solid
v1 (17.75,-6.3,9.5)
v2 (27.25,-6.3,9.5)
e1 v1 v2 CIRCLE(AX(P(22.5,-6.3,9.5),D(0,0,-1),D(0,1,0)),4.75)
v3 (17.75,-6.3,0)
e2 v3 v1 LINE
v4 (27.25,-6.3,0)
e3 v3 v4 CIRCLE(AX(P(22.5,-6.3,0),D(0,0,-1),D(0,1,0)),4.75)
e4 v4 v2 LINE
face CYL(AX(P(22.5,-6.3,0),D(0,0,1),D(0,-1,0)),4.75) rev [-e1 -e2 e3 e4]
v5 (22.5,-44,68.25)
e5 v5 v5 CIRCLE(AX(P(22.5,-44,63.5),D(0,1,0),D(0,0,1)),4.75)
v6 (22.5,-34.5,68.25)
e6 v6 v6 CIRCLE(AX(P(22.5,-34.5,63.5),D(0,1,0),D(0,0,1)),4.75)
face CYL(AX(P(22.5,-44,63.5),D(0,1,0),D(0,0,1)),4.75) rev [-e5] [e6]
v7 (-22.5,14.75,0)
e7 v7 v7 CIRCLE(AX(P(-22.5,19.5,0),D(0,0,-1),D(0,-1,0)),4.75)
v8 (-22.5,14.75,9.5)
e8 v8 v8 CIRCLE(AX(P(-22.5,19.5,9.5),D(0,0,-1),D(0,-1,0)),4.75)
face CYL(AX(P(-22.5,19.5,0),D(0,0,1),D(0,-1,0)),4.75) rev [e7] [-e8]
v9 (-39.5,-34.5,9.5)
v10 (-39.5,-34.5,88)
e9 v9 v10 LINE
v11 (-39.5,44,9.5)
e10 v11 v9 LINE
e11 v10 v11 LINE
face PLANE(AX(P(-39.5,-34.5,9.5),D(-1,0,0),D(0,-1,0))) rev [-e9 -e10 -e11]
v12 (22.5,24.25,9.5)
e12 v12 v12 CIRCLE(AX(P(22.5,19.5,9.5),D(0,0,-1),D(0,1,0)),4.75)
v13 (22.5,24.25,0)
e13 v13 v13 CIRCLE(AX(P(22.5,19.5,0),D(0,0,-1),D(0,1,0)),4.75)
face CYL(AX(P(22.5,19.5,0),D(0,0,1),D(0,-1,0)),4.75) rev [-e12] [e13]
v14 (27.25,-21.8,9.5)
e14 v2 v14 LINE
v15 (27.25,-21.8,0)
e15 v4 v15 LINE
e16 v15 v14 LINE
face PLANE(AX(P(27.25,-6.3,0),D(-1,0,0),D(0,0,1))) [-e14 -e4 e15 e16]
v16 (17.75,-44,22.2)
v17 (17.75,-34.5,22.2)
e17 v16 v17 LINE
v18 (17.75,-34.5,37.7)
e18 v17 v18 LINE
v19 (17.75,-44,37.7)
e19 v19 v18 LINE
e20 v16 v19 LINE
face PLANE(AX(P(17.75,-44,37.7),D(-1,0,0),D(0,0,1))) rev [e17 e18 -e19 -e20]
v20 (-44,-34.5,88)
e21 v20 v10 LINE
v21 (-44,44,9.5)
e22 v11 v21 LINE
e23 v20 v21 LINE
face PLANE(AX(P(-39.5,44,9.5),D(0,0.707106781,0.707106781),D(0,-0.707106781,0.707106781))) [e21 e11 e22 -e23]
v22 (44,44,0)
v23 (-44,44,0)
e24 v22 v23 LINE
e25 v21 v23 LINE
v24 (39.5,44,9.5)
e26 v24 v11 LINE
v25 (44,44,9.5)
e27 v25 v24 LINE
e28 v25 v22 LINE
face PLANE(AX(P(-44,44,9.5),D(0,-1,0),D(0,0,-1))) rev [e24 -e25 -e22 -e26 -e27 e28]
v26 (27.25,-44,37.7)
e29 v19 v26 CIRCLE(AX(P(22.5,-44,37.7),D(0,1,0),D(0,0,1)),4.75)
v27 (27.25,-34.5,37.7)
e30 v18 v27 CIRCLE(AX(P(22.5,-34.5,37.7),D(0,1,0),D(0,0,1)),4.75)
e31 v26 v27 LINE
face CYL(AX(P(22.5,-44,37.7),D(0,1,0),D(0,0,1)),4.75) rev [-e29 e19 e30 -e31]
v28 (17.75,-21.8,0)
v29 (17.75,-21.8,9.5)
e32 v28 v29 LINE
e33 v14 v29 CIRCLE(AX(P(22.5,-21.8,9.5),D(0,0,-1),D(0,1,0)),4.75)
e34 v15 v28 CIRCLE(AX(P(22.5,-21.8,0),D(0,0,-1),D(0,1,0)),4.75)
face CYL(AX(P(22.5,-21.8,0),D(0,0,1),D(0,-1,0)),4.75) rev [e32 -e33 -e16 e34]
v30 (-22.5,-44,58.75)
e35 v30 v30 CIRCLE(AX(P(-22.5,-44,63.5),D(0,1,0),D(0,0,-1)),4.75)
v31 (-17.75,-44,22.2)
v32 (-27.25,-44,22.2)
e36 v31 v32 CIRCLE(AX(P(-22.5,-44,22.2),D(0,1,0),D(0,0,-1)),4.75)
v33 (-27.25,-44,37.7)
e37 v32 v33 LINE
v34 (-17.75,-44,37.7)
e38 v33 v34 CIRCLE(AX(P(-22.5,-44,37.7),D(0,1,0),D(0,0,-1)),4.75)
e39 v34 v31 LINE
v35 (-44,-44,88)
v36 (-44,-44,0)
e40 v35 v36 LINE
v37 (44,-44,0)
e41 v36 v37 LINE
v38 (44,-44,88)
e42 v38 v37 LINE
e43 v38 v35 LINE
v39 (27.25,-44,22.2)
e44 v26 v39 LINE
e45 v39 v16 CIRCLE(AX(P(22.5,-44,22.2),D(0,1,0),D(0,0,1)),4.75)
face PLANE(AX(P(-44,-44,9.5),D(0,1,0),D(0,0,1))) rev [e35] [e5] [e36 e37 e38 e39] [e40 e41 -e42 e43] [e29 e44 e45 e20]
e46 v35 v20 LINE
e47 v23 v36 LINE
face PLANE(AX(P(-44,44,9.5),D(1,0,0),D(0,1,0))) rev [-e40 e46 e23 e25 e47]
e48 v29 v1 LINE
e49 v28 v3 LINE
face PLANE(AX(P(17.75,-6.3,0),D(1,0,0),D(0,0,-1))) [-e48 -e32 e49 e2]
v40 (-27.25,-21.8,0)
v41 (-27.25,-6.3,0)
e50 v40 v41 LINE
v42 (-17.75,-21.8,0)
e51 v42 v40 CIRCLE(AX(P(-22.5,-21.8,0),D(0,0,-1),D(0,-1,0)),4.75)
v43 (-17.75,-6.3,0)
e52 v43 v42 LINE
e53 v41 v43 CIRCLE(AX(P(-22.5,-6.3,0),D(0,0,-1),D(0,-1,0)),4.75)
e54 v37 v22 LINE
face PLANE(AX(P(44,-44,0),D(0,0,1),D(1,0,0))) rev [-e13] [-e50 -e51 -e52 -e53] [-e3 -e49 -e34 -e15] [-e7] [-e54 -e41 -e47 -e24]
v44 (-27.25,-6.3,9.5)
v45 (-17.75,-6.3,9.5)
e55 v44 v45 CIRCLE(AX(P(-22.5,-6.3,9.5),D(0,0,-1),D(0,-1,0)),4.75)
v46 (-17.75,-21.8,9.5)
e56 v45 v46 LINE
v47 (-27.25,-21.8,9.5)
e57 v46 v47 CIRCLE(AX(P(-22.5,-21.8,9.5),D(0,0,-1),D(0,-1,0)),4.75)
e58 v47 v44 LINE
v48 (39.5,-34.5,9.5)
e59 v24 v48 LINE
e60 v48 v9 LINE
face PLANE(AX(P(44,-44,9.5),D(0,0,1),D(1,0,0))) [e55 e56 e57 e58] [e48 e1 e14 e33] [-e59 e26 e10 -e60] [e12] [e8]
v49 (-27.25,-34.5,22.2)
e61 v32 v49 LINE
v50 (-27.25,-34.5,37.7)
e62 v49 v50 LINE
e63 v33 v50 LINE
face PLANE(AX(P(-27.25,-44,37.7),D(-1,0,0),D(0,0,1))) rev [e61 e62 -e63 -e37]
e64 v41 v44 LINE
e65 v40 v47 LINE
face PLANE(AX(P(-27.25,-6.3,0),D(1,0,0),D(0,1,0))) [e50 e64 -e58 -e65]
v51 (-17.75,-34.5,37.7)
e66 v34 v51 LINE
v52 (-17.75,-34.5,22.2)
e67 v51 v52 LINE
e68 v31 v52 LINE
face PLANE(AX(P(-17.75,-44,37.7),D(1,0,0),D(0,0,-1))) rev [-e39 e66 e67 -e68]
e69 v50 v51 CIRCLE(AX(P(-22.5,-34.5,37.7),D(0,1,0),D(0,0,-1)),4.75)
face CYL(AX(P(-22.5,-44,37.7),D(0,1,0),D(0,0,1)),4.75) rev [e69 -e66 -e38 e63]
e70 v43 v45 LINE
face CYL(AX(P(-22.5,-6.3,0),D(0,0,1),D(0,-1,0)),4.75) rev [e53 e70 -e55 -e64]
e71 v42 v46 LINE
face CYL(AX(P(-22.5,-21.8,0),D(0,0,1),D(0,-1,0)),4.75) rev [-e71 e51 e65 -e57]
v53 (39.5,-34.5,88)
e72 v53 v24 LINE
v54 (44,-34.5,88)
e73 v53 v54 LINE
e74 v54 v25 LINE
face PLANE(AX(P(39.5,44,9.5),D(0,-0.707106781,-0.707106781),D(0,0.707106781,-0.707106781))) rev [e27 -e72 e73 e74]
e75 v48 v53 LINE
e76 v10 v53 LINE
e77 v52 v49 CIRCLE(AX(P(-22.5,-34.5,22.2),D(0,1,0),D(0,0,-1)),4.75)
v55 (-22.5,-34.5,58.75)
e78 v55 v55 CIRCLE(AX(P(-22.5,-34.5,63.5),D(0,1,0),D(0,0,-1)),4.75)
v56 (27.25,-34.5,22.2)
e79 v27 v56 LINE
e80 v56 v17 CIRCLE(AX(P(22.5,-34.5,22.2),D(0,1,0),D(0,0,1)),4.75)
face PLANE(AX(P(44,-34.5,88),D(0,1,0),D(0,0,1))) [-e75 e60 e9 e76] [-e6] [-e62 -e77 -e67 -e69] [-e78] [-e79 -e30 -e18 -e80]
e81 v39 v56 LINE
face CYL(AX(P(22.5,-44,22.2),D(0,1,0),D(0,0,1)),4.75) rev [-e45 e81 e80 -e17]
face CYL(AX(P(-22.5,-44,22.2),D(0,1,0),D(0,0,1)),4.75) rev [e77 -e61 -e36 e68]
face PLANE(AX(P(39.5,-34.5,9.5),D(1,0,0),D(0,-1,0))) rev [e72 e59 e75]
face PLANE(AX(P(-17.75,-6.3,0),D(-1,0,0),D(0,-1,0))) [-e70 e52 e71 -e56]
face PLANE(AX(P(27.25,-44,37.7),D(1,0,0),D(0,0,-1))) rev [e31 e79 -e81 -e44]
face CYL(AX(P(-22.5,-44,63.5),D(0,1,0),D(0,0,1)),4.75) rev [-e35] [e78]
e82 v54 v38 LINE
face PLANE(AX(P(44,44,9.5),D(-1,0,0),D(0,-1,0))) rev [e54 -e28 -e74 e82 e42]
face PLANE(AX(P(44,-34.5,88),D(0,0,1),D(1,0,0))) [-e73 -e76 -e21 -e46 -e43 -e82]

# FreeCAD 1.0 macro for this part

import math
import FreeCAD as App
import Part
import Sketcher

V = App.Vector

doc = App.newDocument("Part")
body = doc.addObject("PartDesign::Body", "Body")

# Sketch on XY plane
sketch1 = doc.addObject("Sketcher::SketchObject", "Sketch")
body.addObject(sketch1)
sketch1.AttachmentSupport = (doc.XY_Plane, [""])
sketch1.MapMode = "FlatFace"
sketch1.addGeometry([
    Part.LineSegment(V(-44, 44, 0), V(-44, -44, 0)),
    Part.LineSegment(V(-44, -44, 0), V(44, -44, 0)),
    Part.LineSegment(V(44, -44, 0), V(44, 44, 0)),
    Part.LineSegment(V(44, 44, 0), V(-44, 44, 0)),
], False)
sketch1.addConstraint([
    Sketcher.Constraint("Coincident", 0, 2, 1, 1),
    Sketcher.Constraint("Coincident", 1, 2, 2, 1),
    Sketcher.Constraint("Coincident", 2, 2, 3, 1),
    Sketcher.Constraint("Coincident", 3, 2, 0, 1),
    Sketcher.Constraint("Vertical", 0),
    Sketcher.Constraint("Horizontal", 1),
    Sketcher.Constraint("Vertical", 2),
    Sketcher.Constraint("Horizontal", 3),
    Sketcher.Constraint("Symmetric", 0, 2, 2, 2, -1, 1),
    Sketcher.Constraint("Equal", 3, 0),
    Sketcher.Constraint("DistanceX", 1, 1, 1, 2, 88.0),
])
pad1 = doc.addObject("PartDesign::Pad", "Pad")
body.addObject(pad1)
pad1.Profile = sketch1
pad1.Length = 9.5

# Sketch on XY plane
sketch2 = doc.addObject("Sketcher::SketchObject", "Sketch001")
body.addObject(sketch2)
sketch2.AttachmentSupport = (doc.XY_Plane, [""])
sketch2.MapMode = "FlatFace"
sketch2.addGeometry([
    Part.LineSegment(V(44, -34, 0), V(44, -44, 0)),
    Part.LineSegment(V(44, -44, 0), V(-44, -44, 0)),
    Part.LineSegment(V(-44, -44, 0), V(-44, -34, 0)),
    Part.LineSegment(V(-44, -34, 0), V(44, -34, 0)),
], False)
sketch2.addConstraint([
    Sketcher.Constraint("Coincident", 0, 2, 1, 1),
    Sketcher.Constraint("Coincident", 1, 2, 2, 1),
    Sketcher.Constraint("Coincident", 2, 2, 3, 1),
    Sketcher.Constraint("Coincident", 3, 2, 0, 1),
    Sketcher.Constraint("Vertical", 0),
    Sketcher.Constraint("Horizontal", 1),
    Sketcher.Constraint("Vertical", 2),
    Sketcher.Constraint("Horizontal", 3),
    Sketcher.Constraint("DistanceX", 1, 2, 1, 1, 88.0),
    Sketcher.Constraint("DistanceY", 0, 2, 0, 1, 9.5),
    Sketcher.Constraint("DistanceX", -1, 1, 0, 2, 44.0),
    Sketcher.Constraint("DistanceY", 0, 2, -1, 1, 44.0),
])
pad2 = doc.addObject("PartDesign::Pad", "Pad001")
body.addObject(pad2)
pad2.Profile = sketch2
pad2.Length = 88

# Sketch on YZ plane
sketch3 = doc.addObject("Sketcher::SketchObject", "Sketch002")
body.addObject(sketch3)
sketch3.AttachmentSupport = (doc.YZ_Plane, [""])
sketch3.MapMode = "FlatFace"
sketch3.AttachmentOffset = App.Placement(V(0, 0, -44), App.Rotation())
sketch3.addGeometry([
    Part.LineSegment(V(-34, 88, 0), V(44, 10, 0)),
    Part.LineSegment(V(44, 10, 0), V(-34, 10, 0)),
    Part.LineSegment(V(-34, 10, 0), V(-34, 88, 0)),
], False)
sketch3.addConstraint([
    Sketcher.Constraint("Coincident", 0, 2, 1, 1),
    Sketcher.Constraint("Coincident", 1, 2, 2, 1),
    Sketcher.Constraint("Coincident", 2, 2, 0, 1),
    Sketcher.Constraint("Horizontal", 1),
    Sketcher.Constraint("Vertical", 2),
    Sketcher.Constraint("Equal", 1, 2),
    Sketcher.Constraint("DistanceX", 1, 2, 1, 1, 78.5),
    Sketcher.Constraint("DistanceX", -1, 1, 0, 2, 44.0),
    Sketcher.Constraint("DistanceY", -1, 1, 2, 2, 88.0),
])
pad3 = doc.addObject("PartDesign::Pad", "Pad002")
body.addObject(pad3)
pad3.Profile = sketch3
pad3.Length = 4.5
doc.recompute()

mirrored = doc.addObject("PartDesign::Mirrored", "Mirrored")
body.addObject(mirrored)
mirrored.Originals = [pad3]
mirrored.MirrorPlane = (doc.YZ_Plane, [""])
body.Tip = mirrored

# Sketch on XZ plane
sketch4 = doc.addObject("Sketcher::SketchObject", "Sketch003")
body.addObject(sketch4)
sketch4.AttachmentSupport = (doc.XZ_Plane, [""])
sketch4.MapMode = "FlatFace"
sketch4.AttachmentOffset = App.Placement(V(0, 0, 34.5), App.Rotation())
sketch4.addGeometry([
    Part.Circle(V(22.5, 63.5, 0), V(0, 0, 1), 4.8),  # 0
    Part.Circle(V(-22.5, 63.5, 0), V(0, 0, 1), 4.8),  # 1
    Part.LineSegment(V(17.8, 22.2, 0), V(17.8, 37.7, 0)),  # 2
    Part.ArcOfCircle(Part.Circle(V(22.5, 37.7, 0), V(0, 0, 1), 4.8), math.radians(0), math.radians(180)),  # 3
    Part.LineSegment(V(27.2, 37.7, 0), V(27.2, 22.2, 0)),  # 4
    Part.ArcOfCircle(Part.Circle(V(22.5, 22.2, 0), V(0, 0, 1), 4.8), math.radians(180), math.radians(360)),  # 5
    Part.LineSegment(V(-17.8, 37.7, 0), V(-17.8, 22.2, 0)),  # 6
    Part.ArcOfCircle(Part.Circle(V(-22.5, 22.2, 0), V(0, 0, 1), 4.8), math.radians(180), math.radians(360)),  # 7
    Part.LineSegment(V(-27.2, 22.2, 0), V(-27.2, 37.7, 0)),  # 8
    Part.ArcOfCircle(Part.Circle(V(-22.5, 37.7, 0), V(0, 0, 1), 4.8), math.radians(0), math.radians(180)),  # 9
], False)
sketch4.addConstraint([
    Sketcher.Constraint("Tangent", 2, 2, 3, 2),
    Sketcher.Constraint("Tangent", 3, 1, 4, 1),
    Sketcher.Constraint("Tangent", 4, 2, 5, 2),
    Sketcher.Constraint("Tangent", 5, 1, 2, 1),
    Sketcher.Constraint("Tangent", 6, 2, 7, 2),
    Sketcher.Constraint("Tangent", 7, 1, 8, 1),
    Sketcher.Constraint("Tangent", 8, 2, 9, 2),
    Sketcher.Constraint("Tangent", 9, 1, 6, 1),
    Sketcher.Constraint("Vertical", 2),
    Sketcher.Constraint("Vertical", 4),
    Sketcher.Constraint("Vertical", 6),
    Sketcher.Constraint("Vertical", 8),
    Sketcher.Constraint("Equal", 0, 1),
    Sketcher.Constraint("Equal", 1, 3),
    Sketcher.Constraint("Equal", 5, 7),
    Sketcher.Constraint("Symmetric", 0, 3, 1, 3, -2),
    Sketcher.Constraint("Symmetric", 5, 3, 7, 3, -2),
    Sketcher.Constraint("Horizontal", 3, 3, 9, 3),
    Sketcher.Constraint("Vertical", 0, 3, 3, 3),
    Sketcher.Constraint("Diameter", 0, 9.5),
    Sketcher.Constraint("DistanceY", 2, 1, 2, 2, 15.5),
    Sketcher.Constraint("DistanceX", 1, 3, 0, 3, 45.0),
    Sketcher.Constraint("DistanceY", -1, 1, 0, 3, 63.5),
    Sketcher.Constraint("DistanceY", -1, 1, 3, 3, 37.7),
])
pocket1 = doc.addObject("PartDesign::Pocket", "Pocket")
body.addObject(pocket1)
pocket1.Profile = sketch4
pocket1.Type = "ThroughAll"
pocket1.Reversed = True
doc.recompute()

datumplane = doc.addObject("PartDesign::Plane", "DatumPlane")
body.addObject(datumplane)
datumplane.Placement = App.Placement(V(0, -22, 22), App.Rotation(V(0, 0.707106781, 0.707106781), V(-1, 0, 0), V(0, -0.707106781, 0.707106781), "ZXY"))
mirrored2 = doc.addObject("PartDesign::Mirrored", "Mirrored001")
body.addObject(mirrored2)
mirrored2.Originals = [pocket1]
mirrored2.MirrorPlane = (datumplane, [""])
body.Tip = mirrored2

doc.recompute()
